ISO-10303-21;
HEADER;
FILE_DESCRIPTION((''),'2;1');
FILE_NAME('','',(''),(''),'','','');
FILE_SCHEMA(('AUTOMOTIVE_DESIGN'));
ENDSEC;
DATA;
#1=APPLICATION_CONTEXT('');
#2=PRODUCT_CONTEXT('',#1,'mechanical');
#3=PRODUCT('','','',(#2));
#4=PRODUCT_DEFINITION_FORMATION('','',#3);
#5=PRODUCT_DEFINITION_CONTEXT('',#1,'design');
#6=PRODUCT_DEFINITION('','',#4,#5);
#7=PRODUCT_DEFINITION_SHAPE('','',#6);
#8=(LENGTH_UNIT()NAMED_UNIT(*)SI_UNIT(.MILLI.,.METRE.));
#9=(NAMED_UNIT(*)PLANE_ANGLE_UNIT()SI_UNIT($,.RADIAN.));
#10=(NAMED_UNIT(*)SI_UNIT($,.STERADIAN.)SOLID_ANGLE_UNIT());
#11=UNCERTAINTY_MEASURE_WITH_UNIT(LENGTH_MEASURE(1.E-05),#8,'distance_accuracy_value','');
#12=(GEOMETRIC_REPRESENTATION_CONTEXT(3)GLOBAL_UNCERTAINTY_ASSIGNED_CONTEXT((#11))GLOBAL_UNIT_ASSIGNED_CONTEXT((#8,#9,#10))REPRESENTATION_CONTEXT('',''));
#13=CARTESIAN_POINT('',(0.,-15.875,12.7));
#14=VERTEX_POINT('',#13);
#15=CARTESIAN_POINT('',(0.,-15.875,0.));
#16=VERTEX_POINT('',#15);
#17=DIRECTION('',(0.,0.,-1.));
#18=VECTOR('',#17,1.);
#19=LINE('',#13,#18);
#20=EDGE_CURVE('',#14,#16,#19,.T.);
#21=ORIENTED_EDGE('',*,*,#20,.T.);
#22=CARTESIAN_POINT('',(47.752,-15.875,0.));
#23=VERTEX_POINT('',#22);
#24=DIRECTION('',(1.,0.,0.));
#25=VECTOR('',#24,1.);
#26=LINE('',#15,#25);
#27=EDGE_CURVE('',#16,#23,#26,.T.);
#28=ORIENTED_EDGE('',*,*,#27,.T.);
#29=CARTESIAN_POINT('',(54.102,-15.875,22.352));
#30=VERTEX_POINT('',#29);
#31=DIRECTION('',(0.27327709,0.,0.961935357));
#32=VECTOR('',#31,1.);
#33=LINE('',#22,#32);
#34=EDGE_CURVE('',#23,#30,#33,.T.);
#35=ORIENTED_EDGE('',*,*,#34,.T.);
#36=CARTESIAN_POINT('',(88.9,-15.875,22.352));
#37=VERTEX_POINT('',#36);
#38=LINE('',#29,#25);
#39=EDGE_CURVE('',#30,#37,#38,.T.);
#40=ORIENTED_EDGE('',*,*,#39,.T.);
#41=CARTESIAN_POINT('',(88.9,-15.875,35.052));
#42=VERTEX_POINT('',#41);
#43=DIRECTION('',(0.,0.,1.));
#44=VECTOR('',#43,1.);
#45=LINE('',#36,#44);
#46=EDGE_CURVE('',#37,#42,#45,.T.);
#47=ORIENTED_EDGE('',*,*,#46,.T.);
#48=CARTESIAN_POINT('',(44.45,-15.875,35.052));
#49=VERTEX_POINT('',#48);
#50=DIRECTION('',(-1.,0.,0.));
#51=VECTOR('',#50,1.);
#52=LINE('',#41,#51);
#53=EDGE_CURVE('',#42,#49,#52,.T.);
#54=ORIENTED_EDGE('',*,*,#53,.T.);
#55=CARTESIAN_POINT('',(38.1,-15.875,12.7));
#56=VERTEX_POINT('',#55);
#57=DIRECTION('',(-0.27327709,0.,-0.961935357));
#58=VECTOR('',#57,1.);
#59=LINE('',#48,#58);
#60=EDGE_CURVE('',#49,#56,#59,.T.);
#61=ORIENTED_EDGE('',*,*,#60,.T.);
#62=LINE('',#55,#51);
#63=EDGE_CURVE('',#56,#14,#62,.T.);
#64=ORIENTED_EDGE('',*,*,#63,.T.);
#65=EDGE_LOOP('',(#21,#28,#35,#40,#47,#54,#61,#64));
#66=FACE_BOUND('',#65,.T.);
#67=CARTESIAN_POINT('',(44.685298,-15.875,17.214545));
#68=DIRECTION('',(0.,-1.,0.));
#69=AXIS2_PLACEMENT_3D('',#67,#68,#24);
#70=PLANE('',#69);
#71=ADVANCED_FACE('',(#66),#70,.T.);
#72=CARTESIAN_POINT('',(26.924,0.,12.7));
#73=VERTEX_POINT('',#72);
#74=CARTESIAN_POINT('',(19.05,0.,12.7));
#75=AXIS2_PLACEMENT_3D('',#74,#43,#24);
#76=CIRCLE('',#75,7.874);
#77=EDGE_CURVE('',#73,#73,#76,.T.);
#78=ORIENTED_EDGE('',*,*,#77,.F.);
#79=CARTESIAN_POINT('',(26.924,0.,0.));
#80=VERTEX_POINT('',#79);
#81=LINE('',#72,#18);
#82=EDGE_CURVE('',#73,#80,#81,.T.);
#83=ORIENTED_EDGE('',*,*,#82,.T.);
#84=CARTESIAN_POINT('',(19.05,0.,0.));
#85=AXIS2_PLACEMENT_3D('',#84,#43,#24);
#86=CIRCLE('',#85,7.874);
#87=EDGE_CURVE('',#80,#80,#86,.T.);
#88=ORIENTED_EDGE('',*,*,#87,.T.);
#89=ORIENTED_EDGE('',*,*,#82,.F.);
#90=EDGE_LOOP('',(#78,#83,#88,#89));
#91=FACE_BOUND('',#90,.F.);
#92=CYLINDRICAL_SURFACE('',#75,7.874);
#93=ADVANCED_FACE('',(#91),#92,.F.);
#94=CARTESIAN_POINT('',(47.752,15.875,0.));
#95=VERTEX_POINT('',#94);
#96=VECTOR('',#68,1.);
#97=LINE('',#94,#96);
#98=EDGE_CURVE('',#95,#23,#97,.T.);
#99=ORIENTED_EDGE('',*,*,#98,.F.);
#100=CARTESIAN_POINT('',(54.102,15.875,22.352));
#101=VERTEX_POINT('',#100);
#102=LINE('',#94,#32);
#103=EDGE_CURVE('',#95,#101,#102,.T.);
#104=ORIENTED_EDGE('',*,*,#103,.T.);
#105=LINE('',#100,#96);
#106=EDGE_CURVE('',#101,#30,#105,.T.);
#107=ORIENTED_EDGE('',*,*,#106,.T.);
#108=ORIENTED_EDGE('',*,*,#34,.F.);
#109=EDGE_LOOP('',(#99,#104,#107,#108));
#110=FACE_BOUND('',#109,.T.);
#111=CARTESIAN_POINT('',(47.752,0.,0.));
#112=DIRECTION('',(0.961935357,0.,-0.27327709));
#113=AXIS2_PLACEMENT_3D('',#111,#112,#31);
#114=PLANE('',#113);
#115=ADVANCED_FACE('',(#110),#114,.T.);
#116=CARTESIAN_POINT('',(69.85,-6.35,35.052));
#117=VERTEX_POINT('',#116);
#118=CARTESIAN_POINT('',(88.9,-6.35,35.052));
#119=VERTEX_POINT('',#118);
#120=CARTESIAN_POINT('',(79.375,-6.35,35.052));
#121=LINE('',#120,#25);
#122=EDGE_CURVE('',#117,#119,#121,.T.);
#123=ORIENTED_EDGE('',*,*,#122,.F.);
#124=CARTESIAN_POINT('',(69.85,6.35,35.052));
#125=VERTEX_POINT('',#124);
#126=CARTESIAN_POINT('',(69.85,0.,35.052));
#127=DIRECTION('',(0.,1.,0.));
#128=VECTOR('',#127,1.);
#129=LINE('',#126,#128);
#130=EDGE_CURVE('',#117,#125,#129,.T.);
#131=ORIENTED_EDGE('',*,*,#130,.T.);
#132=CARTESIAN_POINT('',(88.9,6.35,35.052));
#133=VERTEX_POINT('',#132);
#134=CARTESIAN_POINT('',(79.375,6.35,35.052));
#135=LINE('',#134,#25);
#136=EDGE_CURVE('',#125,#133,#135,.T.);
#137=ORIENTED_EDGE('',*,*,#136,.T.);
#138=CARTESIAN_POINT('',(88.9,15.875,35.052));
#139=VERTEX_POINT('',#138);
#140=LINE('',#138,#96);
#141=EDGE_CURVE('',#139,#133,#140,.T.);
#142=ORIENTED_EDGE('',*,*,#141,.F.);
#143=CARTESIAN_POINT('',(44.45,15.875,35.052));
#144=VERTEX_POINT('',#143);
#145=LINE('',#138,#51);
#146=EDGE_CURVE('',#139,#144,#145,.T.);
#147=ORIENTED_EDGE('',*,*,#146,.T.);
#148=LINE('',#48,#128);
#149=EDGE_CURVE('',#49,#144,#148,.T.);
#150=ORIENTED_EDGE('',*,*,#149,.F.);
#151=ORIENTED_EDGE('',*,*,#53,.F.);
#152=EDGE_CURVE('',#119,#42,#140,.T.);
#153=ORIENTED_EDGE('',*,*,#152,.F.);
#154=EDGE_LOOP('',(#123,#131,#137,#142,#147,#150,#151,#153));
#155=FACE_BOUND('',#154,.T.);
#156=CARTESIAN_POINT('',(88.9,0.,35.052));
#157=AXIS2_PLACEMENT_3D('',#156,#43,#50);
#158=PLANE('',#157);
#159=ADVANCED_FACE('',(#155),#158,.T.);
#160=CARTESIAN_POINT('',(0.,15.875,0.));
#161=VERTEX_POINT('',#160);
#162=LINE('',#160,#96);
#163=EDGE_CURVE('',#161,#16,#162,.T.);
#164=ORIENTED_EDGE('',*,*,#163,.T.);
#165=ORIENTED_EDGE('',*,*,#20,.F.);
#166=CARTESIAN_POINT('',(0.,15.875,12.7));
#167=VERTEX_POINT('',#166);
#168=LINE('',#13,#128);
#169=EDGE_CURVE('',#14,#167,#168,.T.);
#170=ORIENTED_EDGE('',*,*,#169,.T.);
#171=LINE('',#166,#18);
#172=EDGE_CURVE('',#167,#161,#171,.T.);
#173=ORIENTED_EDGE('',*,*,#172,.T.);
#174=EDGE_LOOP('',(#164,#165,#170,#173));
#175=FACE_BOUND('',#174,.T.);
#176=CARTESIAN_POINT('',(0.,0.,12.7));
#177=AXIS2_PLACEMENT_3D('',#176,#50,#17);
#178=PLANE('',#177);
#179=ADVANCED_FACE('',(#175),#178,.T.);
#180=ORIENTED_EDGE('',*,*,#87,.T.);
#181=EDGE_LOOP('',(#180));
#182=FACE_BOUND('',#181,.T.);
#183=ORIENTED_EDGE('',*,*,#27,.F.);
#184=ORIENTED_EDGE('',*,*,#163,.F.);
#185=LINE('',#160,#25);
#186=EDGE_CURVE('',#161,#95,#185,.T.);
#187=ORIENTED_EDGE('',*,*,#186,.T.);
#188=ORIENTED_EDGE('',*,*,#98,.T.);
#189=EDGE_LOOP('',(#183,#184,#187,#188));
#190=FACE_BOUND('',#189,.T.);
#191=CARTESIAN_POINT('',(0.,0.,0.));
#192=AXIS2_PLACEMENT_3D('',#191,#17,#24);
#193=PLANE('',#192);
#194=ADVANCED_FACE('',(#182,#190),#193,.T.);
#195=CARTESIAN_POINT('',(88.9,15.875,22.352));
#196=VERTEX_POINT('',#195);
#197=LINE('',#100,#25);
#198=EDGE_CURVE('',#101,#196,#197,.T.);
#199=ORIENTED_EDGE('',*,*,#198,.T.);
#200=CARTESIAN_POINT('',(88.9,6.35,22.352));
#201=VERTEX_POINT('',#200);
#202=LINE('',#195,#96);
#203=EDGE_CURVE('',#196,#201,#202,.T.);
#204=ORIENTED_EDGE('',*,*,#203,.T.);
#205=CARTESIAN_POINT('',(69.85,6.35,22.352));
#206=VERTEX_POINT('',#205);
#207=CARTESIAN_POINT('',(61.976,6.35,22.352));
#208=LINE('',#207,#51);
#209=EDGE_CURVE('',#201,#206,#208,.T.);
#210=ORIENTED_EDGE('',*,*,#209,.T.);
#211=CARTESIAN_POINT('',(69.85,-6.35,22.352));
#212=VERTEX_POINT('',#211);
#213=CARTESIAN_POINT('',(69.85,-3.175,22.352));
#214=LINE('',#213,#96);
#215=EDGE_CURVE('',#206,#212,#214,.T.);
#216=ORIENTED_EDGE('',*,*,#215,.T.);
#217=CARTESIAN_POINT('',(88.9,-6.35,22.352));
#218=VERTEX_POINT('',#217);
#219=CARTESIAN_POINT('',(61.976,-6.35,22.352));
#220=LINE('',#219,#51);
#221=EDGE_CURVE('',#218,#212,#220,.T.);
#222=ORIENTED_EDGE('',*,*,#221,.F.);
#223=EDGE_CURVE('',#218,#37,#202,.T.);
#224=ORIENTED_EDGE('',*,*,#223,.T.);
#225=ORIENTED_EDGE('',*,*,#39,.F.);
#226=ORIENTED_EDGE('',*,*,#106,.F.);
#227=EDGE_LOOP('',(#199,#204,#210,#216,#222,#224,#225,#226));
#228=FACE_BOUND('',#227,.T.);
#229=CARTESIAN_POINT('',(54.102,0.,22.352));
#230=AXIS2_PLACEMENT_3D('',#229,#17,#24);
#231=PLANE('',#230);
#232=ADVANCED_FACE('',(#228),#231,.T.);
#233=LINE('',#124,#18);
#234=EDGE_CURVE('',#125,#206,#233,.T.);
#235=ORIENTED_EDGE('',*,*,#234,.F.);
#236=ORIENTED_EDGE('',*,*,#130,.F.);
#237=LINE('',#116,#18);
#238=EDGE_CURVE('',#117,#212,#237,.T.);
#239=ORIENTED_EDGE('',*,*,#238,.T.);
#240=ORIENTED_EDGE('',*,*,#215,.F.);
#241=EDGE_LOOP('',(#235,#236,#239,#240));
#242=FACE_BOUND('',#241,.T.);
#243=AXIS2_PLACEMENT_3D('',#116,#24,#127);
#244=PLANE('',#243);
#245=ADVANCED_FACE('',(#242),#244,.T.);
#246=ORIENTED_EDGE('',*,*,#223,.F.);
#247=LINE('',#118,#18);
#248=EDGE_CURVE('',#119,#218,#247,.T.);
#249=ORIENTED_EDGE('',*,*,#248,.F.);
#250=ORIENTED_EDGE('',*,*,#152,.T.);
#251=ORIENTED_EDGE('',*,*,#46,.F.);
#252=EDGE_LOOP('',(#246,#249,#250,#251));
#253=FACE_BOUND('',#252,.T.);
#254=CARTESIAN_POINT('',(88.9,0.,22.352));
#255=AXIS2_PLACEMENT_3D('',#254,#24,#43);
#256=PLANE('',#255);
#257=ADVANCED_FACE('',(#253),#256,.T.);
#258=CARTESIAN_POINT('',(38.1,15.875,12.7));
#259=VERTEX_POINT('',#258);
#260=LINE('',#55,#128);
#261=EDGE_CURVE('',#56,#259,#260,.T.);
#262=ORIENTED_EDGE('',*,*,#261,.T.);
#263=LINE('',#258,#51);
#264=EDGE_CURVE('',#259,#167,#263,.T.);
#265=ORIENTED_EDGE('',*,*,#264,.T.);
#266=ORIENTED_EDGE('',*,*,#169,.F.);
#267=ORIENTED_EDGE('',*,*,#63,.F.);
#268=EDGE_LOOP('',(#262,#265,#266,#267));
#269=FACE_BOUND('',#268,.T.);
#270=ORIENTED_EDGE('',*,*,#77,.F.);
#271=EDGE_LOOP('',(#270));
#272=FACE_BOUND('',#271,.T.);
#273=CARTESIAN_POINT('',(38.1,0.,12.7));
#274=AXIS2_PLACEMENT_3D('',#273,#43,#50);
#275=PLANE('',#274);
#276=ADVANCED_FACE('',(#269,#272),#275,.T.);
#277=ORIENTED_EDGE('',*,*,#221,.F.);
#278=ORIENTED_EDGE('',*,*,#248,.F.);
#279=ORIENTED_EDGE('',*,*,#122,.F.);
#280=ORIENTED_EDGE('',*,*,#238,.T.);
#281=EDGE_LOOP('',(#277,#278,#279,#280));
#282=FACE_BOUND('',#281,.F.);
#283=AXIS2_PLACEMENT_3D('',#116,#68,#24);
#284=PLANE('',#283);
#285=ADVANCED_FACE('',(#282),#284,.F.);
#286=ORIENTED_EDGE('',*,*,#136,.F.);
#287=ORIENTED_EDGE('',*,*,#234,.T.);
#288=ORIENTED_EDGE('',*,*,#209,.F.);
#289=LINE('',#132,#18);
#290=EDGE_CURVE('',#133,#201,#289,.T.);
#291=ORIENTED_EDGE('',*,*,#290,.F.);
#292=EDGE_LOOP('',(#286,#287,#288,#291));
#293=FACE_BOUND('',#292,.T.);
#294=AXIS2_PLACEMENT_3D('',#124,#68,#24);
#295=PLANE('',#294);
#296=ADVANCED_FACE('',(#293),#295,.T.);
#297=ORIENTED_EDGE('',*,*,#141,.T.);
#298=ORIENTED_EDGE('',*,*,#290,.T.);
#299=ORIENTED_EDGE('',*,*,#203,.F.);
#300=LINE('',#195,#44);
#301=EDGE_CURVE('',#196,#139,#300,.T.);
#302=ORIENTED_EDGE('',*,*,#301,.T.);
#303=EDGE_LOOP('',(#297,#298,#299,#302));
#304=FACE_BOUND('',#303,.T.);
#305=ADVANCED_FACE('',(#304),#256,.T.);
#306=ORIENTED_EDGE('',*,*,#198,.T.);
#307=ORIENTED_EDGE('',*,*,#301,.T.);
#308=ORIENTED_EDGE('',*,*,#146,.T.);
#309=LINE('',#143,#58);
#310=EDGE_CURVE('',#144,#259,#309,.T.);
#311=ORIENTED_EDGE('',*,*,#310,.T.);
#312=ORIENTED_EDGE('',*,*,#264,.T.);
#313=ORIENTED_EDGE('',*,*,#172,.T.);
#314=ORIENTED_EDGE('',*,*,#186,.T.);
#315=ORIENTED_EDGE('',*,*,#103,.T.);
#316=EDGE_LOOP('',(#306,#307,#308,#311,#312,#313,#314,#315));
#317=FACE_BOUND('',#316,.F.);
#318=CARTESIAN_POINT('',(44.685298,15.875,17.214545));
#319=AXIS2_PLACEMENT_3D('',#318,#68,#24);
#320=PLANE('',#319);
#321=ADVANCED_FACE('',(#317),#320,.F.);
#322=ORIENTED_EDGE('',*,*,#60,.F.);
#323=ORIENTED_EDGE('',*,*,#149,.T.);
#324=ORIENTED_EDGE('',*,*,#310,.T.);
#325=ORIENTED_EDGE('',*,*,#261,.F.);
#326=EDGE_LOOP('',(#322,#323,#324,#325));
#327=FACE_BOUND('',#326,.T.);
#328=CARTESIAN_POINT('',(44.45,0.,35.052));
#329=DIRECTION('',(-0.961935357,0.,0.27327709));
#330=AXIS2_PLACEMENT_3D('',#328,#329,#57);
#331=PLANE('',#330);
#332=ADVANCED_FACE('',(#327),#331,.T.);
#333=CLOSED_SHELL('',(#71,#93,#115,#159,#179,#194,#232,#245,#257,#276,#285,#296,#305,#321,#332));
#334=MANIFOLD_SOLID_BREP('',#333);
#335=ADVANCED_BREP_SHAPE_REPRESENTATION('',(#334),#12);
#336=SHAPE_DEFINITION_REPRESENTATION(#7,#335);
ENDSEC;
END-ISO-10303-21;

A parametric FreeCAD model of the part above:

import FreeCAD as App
import Part
import Sketcher
from FreeCAD import Vector
Q = App.Units.Quantity


def add_polygon(sketch, points):
    """Adds a closed chain of lines whose ends are joined by coincident constraints."""
    first, n = sketch.GeometryCount, len(points)
    for a, b in zip(points, points[1:] + points[:1]):
        sketch.addGeometry(Part.LineSegment(App.Vector(*a, 0), App.Vector(*b, 0)), False)
    for i in range(n):
        sketch.addConstraint(Sketcher.Constraint("Coincident", first + i, 2, first + (i + 1) % n, 1))

doc = App.newDocument("Part")
params = doc.addObject("Spreadsheet::Sheet", "Params")
for row, (alias, value) in enumerate([
    ("sketch1_width", "1.5 in"),
    ("sketch1_height", "0.5 in"),
    ("sketch1_width2", "1.88 in"),
    ("sketch1_width3", "1.37 in"),
    ("pad1_length", "1.25 in"),
    ("sketch2_height", "0.5 in"),
    ("sketch2_width", "0.75 in"),
    ("pocket1_length", "1 in"),
    ("sketch3_diameter", "0.62 in"),
    ("pocket2_length", "1 in"),
], start=1):
    params.set(f"A{row}", alias)
    params.set(f"B{row}", "=" + value)
    params.setAlias(f"B{row}", alias)

body = doc.addObject("PartDesign::Body", "Body")

# Sketch on XZ plane
sketch1 = doc.addObject("Sketcher::SketchObject", "Sketch")
body.addObject(sketch1)
sketch1.AttachmentSupport = (doc.XZ_Plane, [""])
sketch1.MapMode = "FlatFace"
add_polygon(sketch1, [(0, 13), (0, 0), (48, 0), (54, 22), (89, 22), (89, 35), (44, 35), (38, 13)])  # lines 0-7
sketch1.addConstraint([
    Sketcher.Constraint("Vertical", 0),
    Sketcher.Constraint("Horizontal", 1),
    Sketcher.Constraint("Horizontal", 3),
    Sketcher.Constraint("Vertical", 4),
    Sketcher.Constraint("Horizontal", 5),
    Sketcher.Constraint("Horizontal", 7),
    Sketcher.Constraint("Coincident", 0, 2, -1, 1),
    Sketcher.Constraint("Parallel", 2, 6),
    Sketcher.Constraint("Equal", 0, 4),
    Sketcher.Constraint("DistanceX", 7, 2, 7, 1, Q("1.5 in")),
    Sketcher.Constraint("DistanceY", 0, 2, 0, 1, Q("0.5 in")),
    Sketcher.Constraint("DistanceX", 6, 2, 3, 2, Q("2 in")),
    Sketcher.Constraint("DistanceX", 1, 1, 1, 2, Q("1.88 in")),
    Sketcher.Constraint("DistanceX", 3, 1, 3, 2, Q("1.37 in")),
    Sketcher.Constraint("DistanceY", -1, 1, 2, 2, Q("0.88 in")),
])
sketch1.setExpression("Constraints[17]", "Params.sketch1_width")
sketch1.setExpression("Constraints[18]", "Params.sketch1_height")
sketch1.setExpression("Constraints[20]", "Params.sketch1_width2")
sketch1.setExpression("Constraints[21]", "Params.sketch1_width3")
pad1 = doc.addObject("PartDesign::Pad", "Pad")
body.addObject(pad1)
pad1.Profile = sketch1
pad1.setExpression("Length", "Params.pad1_length")
pad1.Midplane = True

# Sketch on XY plane
sketch2 = doc.addObject("Sketcher::SketchObject", "Sketch001")
body.addObject(sketch2)
sketch2.AttachmentSupport = (doc.XY_Plane, [""])
sketch2.MapMode = "FlatFace"
sketch2.AttachmentOffset = App.Placement(Vector(0, 0, 1.38 * 25.4), App.Rotation())
add_polygon(sketch2, [(70, 6), (70, -6), (89, -6), (89, 6)])  # lines 0-3
sketch2.addConstraint([
    Sketcher.Constraint("Vertical", 0),
    Sketcher.Constraint("Horizontal", 1),
    Sketcher.Constraint("Vertical", 2),
    Sketcher.Constraint("Horizontal", 3),
    Sketcher.Constraint("DistanceY", 0, 2, 0, 1, Q("0.5 in")),
    Sketcher.Constraint("DistanceX", 1, 1, 1, 2, Q("0.75 in")),
    Sketcher.Constraint("DistanceX", -1, 1, 1, 2, Q("3.5 in")),
    Sketcher.Constraint("DistanceY", 0, 2, -1, 1, Q("0.25 in")),
])
sketch2.setExpression("Constraints[8]", "Params.sketch2_height")
sketch2.setExpression("Constraints[9]", "Params.sketch2_width")
pocket1 = doc.addObject("PartDesign::Pocket", "Pocket")
body.addObject(pocket1)
pocket1.Profile = sketch2
pocket1.setExpression("Length", "Params.pocket1_length")

# Sketch on XY plane
sketch3 = doc.addObject("Sketcher::SketchObject", "Sketch002")
body.addObject(sketch3)
sketch3.AttachmentSupport = (doc.XY_Plane, [""])
sketch3.MapMode = "FlatFace"
sketch3.AttachmentOffset = App.Placement(Vector(0, 0, 0.5 * 25.4), App.Rotation())
sketch3.addGeometry(Part.Circle(Vector(19, 0, 0), Vector(0, 0, 1), 8), False)
sketch3.addConstraint([
    Sketcher.Constraint("PointOnObject", 0, 3, -1),
    Sketcher.Constraint("Diameter", 0, Q("0.62 in")),
    Sketcher.Constraint("DistanceX", -1, 1, 0, 3, Q("0.75 in")),
])
sketch3.setExpression("Constraints[1]", "Params.sketch3_diameter")
pocket2 = doc.addObject("PartDesign::Pocket", "Pocket001")
body.addObject(pocket2)
pocket2.Profile = sketch3
pocket2.setExpression("Length", "Params.pocket2_length")

doc.recompute()
